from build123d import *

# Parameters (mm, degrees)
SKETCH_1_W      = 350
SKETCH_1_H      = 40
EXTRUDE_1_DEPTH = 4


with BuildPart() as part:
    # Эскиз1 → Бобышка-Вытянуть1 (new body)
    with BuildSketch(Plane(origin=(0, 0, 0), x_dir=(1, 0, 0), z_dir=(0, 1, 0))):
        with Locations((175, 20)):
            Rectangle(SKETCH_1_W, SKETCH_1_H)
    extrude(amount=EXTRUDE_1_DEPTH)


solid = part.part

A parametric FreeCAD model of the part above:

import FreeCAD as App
import Part
import Sketcher
from FreeCAD import Vector
Q = App.Units.Quantity

doc = App.newDocument("Part")
body = doc.addObject("PartDesign::Body", "Body")

sketch1 = doc.addObject("Sketcher::SketchObject", "Sketch")
body.addObject(sketch1)
sketch1.AttachmentSupport = (doc.XZ_Plane, [""])
sketch1.MapMode = "FlatFace"
sketch1.addGeometry(Part.LineSegment(Vector(0, -40, 0), Vector(0, 0, 0)), False)
sketch1.addGeometry(Part.LineSegment(Vector(0, 0, 0), Vector(350, 0, 0)), False)
sketch1.addGeometry(Part.LineSegment(Vector(350, 0, 0), Vector(350, -40, 0)), False)
sketch1.addGeometry(Part.LineSegment(Vector(350, -40, 0), Vector(0, -40, 0)), False)
sketch1.addConstraint(Sketcher.Constraint("Coincident", 0, 2, 1, 1))
sketch1.addConstraint(Sketcher.Constraint("Coincident", 1, 2, 2, 1))
sketch1.addConstraint(Sketcher.Constraint("Coincident", 2, 2, 3, 1))
sketch1.addConstraint(Sketcher.Constraint("Coincident", 3, 2, 0, 1))
sketch1.addConstraint(Sketcher.Constraint("Vertical", 0))
sketch1.addConstraint(Sketcher.Constraint("Horizontal", 1))
sketch1.addConstraint(Sketcher.Constraint("Vertical", 2))
sketch1.addConstraint(Sketcher.Constraint("Horizontal", 3))
sketch1.addConstraint(Sketcher.Constraint("Coincident", 0, 2, -1, 1))
sketch1.addConstraint(Sketcher.Constraint("DistanceX", 1, 1, 1, 2, Q("350 mm")))
sketch1.addConstraint(Sketcher.Constraint("DistanceY", 0, 1, 0, 2, Q("40 mm")))
pad1 = doc.addObject("PartDesign::Pad", "Pad")
body.addObject(pad1)
pad1.Profile = sketch1
pad1.Length = 4
pad1.Reversed = True

doc.recompute()
